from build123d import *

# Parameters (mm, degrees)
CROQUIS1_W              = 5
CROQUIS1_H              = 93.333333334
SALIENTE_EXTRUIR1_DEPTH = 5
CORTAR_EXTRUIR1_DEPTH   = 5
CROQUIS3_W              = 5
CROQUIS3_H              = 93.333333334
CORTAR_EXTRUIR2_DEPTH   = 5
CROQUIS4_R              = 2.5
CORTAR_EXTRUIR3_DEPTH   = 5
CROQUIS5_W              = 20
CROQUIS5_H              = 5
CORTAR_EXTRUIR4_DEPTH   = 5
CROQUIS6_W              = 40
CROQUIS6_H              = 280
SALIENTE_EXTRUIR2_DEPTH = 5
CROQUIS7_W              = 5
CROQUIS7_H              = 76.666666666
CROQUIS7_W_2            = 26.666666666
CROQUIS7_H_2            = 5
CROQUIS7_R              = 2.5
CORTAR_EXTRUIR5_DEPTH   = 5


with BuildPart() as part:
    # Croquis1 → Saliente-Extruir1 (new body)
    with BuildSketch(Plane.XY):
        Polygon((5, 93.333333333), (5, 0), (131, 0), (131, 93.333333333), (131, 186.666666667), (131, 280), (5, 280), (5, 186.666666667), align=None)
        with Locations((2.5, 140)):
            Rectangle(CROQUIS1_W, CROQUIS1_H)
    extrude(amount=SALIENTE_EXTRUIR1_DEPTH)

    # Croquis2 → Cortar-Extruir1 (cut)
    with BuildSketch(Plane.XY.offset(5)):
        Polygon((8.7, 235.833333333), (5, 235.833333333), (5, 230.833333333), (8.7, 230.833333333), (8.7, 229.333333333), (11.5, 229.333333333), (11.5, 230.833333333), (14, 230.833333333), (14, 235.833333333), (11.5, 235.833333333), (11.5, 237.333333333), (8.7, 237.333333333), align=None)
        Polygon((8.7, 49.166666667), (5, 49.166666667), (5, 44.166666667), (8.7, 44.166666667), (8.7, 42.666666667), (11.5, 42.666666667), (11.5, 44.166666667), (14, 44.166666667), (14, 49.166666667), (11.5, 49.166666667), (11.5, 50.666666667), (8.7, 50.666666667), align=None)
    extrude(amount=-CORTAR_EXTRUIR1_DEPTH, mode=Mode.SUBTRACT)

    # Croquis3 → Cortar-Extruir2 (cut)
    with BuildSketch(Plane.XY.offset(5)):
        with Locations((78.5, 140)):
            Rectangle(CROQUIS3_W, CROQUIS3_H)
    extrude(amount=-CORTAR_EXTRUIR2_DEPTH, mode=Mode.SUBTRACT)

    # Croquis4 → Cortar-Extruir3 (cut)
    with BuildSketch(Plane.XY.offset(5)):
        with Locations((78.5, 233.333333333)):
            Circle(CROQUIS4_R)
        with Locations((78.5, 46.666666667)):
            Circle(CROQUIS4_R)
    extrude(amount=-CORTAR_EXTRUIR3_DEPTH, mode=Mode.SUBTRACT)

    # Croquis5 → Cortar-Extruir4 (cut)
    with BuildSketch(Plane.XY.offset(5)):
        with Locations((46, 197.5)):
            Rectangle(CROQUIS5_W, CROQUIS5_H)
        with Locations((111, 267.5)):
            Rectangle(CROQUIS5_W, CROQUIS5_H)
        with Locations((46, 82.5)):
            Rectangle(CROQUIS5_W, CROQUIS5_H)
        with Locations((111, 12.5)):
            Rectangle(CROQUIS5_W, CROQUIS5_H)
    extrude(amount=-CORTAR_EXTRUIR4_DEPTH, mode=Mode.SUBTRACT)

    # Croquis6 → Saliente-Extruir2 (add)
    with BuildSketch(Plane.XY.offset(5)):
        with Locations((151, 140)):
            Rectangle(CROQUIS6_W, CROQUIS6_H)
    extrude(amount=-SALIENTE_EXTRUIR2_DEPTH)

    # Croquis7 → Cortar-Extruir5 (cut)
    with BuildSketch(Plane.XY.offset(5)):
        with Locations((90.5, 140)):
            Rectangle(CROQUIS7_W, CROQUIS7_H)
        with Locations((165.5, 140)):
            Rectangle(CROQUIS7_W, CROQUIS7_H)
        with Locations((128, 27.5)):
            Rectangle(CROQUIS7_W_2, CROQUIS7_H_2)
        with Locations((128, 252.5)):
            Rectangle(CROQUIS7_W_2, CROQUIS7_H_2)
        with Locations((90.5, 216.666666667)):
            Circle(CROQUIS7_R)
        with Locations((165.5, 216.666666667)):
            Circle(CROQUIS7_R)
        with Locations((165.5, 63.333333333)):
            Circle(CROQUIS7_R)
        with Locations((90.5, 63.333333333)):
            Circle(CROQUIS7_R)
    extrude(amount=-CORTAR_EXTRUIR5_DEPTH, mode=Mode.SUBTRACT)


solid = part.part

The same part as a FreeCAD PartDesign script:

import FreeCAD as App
import Part
import Sketcher
from FreeCAD import Vector
Q = App.Units.Quantity

doc = App.newDocument("Part")
body = doc.addObject("PartDesign::Body", "Body")

# Sketch on XY plane
sketch1 = doc.addObject("Sketcher::SketchObject", "Sketch")
body.addObject(sketch1)
sketch1.AttachmentSupport = (doc.XY_Plane, [""])
sketch1.MapMode = "FlatFace"
sketch1.addGeometry(Part.LineSegment(Vector(5, 0, 0), Vector(131, 0, 0)), False)
sketch1.addGeometry(Part.LineSegment(Vector(131, 0, 0), Vector(131, 280, 0)), False)
sketch1.addGeometry(Part.LineSegment(Vector(131, 280, 0), Vector(5, 280, 0)), False)
sketch1.addGeometry(Part.LineSegment(Vector(5, 280, 0), Vector(5, 186.666667, 0)), False)
sketch1.addGeometry(Part.LineSegment(Vector(5, 186.666667, 0), Vector(0, 186.666667, 0)), False)
sketch1.addGeometry(Part.LineSegment(Vector(0, 186.666667, 0), Vector(0, 93.333333, 0)), False)
sketch1.addGeometry(Part.LineSegment(Vector(0, 93.333333, 0), Vector(5, 93.333333, 0)), False)
sketch1.addGeometry(Part.LineSegment(Vector(5, 93.333333, 0), Vector(5, 0, 0)), False)
sketch1.addConstraint(Sketcher.Constraint("Coincident", 0, 2, 1, 1))
sketch1.addConstraint(Sketcher.Constraint("Coincident", 1, 2, 2, 1))
sketch1.addConstraint(Sketcher.Constraint("Coincident", 2, 2, 3, 1))
sketch1.addConstraint(Sketcher.Constraint("Coincident", 3, 2, 4, 1))
sketch1.addConstraint(Sketcher.Constraint("Coincident", 4, 2, 5, 1))
sketch1.addConstraint(Sketcher.Constraint("Coincident", 5, 2, 6, 1))
sketch1.addConstraint(Sketcher.Constraint("Coincident", 6, 2, 7, 1))
sketch1.addConstraint(Sketcher.Constraint("Coincident", 7, 2, 0, 1))
sketch1.addConstraint(Sketcher.Constraint("Horizontal", 0))
sketch1.addConstraint(Sketcher.Constraint("Vertical", 1))
sketch1.addConstraint(Sketcher.Constraint("Horizontal", 2))
sketch1.addConstraint(Sketcher.Constraint("Vertical", 3))
sketch1.addConstraint(Sketcher.Constraint("Horizontal", 4))
sketch1.addConstraint(Sketcher.Constraint("Vertical", 5))
sketch1.addConstraint(Sketcher.Constraint("Horizontal", 6))
sketch1.addConstraint(Sketcher.Constraint("Vertical", 7))
sketch1.addConstraint(Sketcher.Constraint("PointOnObject", 0, 2, -1))
sketch1.addConstraint(Sketcher.Constraint("PointOnObject", 4, 2, -2))
sketch1.addConstraint(Sketcher.Constraint("Vertical", 3, 2, 6, 2))
sketch1.addConstraint(Sketcher.Constraint("Equal", 3, 5))
sketch1.addConstraint(Sketcher.Constraint("Equal", 5, 7))
sketch1.addConstraint(Sketcher.Constraint("DistanceX", 0, 1, 0, 2, Q("126 mm")))
sketch1.addConstraint(Sketcher.Constraint("DistanceX", 4, 2, 4, 1, Q("5 mm")))
sketch1.addConstraint(Sketcher.Constraint("DistanceY", 1, 1, 1, 2, Q("280 mm")))
pad1 = doc.addObject("PartDesign::Pad", "Pad")
body.addObject(pad1)
pad1.Profile = sketch1
pad1.Length = 5

# Sketch on XY plane
sketch2 = doc.addObject("Sketcher::SketchObject", "Sketch001")
body.addObject(sketch2)
sketch2.AttachmentSupport = (doc.XY_Plane, [""])
sketch2.MapMode = "FlatFace"
sketch2.AttachmentOffset = App.Placement(Vector(0, 0, 5), App.Rotation())
sketch2.addGeometry(Part.LineSegment(Vector(8.7, 235.833333, 0), Vector(5, 235.833333, 0)), False)
sketch2.addGeometry(Part.LineSegment(Vector(5, 235.833333, 0), Vector(5, 230.833333, 0)), False)
sketch2.addGeometry(Part.LineSegment(Vector(5, 230.833333, 0), Vector(8.7, 230.833333, 0)), False)
sketch2.addGeometry(Part.LineSegment(Vector(8.7, 230.833333, 0), Vector(8.7, 229.333333, 0)), False)
sketch2.addGeometry(Part.LineSegment(Vector(8.7, 229.333333, 0), Vector(11.5, 229.333333, 0)), False)
sketch2.addGeometry(Part.LineSegment(Vector(11.5, 229.333333, 0), Vector(11.5, 230.833333, 0)), False)
sketch2.addGeometry(Part.LineSegment(Vector(11.5, 230.833333, 0), Vector(14, 230.833333, 0)), False)
sketch2.addGeometry(Part.LineSegment(Vector(14, 230.833333, 0), Vector(14, 235.833333, 0)), False)
sketch2.addGeometry(Part.LineSegment(Vector(14, 235.833333, 0), Vector(11.5, 235.833333, 0)), False)
sketch2.addGeometry(Part.LineSegment(Vector(11.5, 235.833333, 0), Vector(11.5, 237.333333, 0)), False)
sketch2.addGeometry(Part.LineSegment(Vector(11.5, 237.333333, 0), Vector(8.7, 237.333333, 0)), False)
sketch2.addGeometry(Part.LineSegment(Vector(8.7, 237.333333, 0), Vector(8.7, 235.833333, 0)), False)
sketch2.addGeometry(Part.LineSegment(Vector(8.7, 49.166667, 0), Vector(5, 49.166667, 0)), False)
sketch2.addGeometry(Part.LineSegment(Vector(5, 49.166667, 0), Vector(5, 44.166667, 0)), False)
sketch2.addGeometry(Part.LineSegment(Vector(5, 44.166667, 0), Vector(8.7, 44.166667, 0)), False)
sketch2.addGeometry(Part.LineSegment(Vector(8.7, 44.166667, 0), Vector(8.7, 42.666667, 0)), False)
sketch2.addGeometry(Part.LineSegment(Vector(8.7, 42.666667, 0), Vector(11.5, 42.666667, 0)), False)
sketch2.addGeometry(Part.LineSegment(Vector(11.5, 42.666667, 0), Vector(11.5, 44.166667, 0)), False)
sketch2.addGeometry(Part.LineSegment(Vector(11.5, 44.166667, 0), Vector(14, 44.166667, 0)), False)
sketch2.addGeometry(Part.LineSegment(Vector(14, 44.166667, 0), Vector(14, 49.166667, 0)), False)
sketch2.addGeometry(Part.LineSegment(Vector(14, 49.166667, 0), Vector(11.5, 49.166667, 0)), False)
sketch2.addGeometry(Part.LineSegment(Vector(11.5, 49.166667, 0), Vector(11.5, 50.666667, 0)), False)
sketch2.addGeometry(Part.LineSegment(Vector(11.5, 50.666667, 0), Vector(8.7, 50.666667, 0)), False)
sketch2.addGeometry(Part.LineSegment(Vector(8.7, 50.666667, 0), Vector(8.7, 49.166667, 0)), False)
sketch2.addConstraint(Sketcher.Constraint("Coincident", 0, 2, 1, 1))
sketch2.addConstraint(Sketcher.Constraint("Coincident", 1, 2, 2, 1))
sketch2.addConstraint(Sketcher.Constraint("Coincident", 2, 2, 3, 1))
sketch2.addConstraint(Sketcher.Constraint("Coincident", 3, 2, 4, 1))
sketch2.addConstraint(Sketcher.Constraint("Coincident", 4, 2, 5, 1))
sketch2.addConstraint(Sketcher.Constraint("Coincident", 5, 2, 6, 1))
sketch2.addConstraint(Sketcher.Constraint("Coincident", 6, 2, 7, 1))
sketch2.addConstraint(Sketcher.Constraint("Coincident", 7, 2, 8, 1))
sketch2.addConstraint(Sketcher.Constraint("Coincident", 8, 2, 9, 1))
sketch2.addConstraint(Sketcher.Constraint("Coincident", 9, 2, 10, 1))
sketch2.addConstraint(Sketcher.Constraint("Coincident", 10, 2, 11, 1))
sketch2.addConstraint(Sketcher.Constraint("Coincident", 11, 2, 0, 1))
sketch2.addConstraint(Sketcher.Constraint("Coincident", 12, 2, 13, 1))
sketch2.addConstraint(Sketcher.Constraint("Coincident", 13, 2, 14, 1))
sketch2.addConstraint(Sketcher.Constraint("Coincident", 14, 2, 15, 1))
sketch2.addConstraint(Sketcher.Constraint("Coincident", 15, 2, 16, 1))
sketch2.addConstraint(Sketcher.Constraint("Coincident", 16, 2, 17, 1))
sketch2.addConstraint(Sketcher.Constraint("Coincident", 17, 2, 18, 1))
sketch2.addConstraint(Sketcher.Constraint("Coincident", 18, 2, 19, 1))
sketch2.addConstraint(Sketcher.Constraint("Coincident", 19, 2, 20, 1))
sketch2.addConstraint(Sketcher.Constraint("Coincident", 20, 2, 21, 1))
sketch2.addConstraint(Sketcher.Constraint("Coincident", 21, 2, 22, 1))
sketch2.addConstraint(Sketcher.Constraint("Coincident", 22, 2, 23, 1))
sketch2.addConstraint(Sketcher.Constraint("Coincident", 23, 2, 12, 1))
sketch2.addConstraint(Sketcher.Constraint("Horizontal", 0))
sketch2.addConstraint(Sketcher.Constraint("Vertical", 1))
sketch2.addConstraint(Sketcher.Constraint("Horizontal", 2))
sketch2.addConstraint(Sketcher.Constraint("Vertical", 3))
sketch2.addConstraint(Sketcher.Constraint("Horizontal", 4))
sketch2.addConstraint(Sketcher.Constraint("Vertical", 5))
sketch2.addConstraint(Sketcher.Constraint("Horizontal", 6))
sketch2.addConstraint(Sketcher.Constraint("Vertical", 7))
sketch2.addConstraint(Sketcher.Constraint("Horizontal", 8))
sketch2.addConstraint(Sketcher.Constraint("Vertical", 9))
sketch2.addConstraint(Sketcher.Constraint("Horizontal", 10))
sketch2.addConstraint(Sketcher.Constraint("Vertical", 11))
sketch2.addConstraint(Sketcher.Constraint("Horizontal", 12))
sketch2.addConstraint(Sketcher.Constraint("Vertical", 13))
sketch2.addConstraint(Sketcher.Constraint("Horizontal", 14))
sketch2.addConstraint(Sketcher.Constraint("Vertical", 15))
sketch2.addConstraint(Sketcher.Constraint("Horizontal", 16))
sketch2.addConstraint(Sketcher.Constraint("Vertical", 17))
sketch2.addConstraint(Sketcher.Constraint("Horizontal", 18))
sketch2.addConstraint(Sketcher.Constraint("Vertical", 19))
sketch2.addConstraint(Sketcher.Constraint("Horizontal", 20))
sketch2.addConstraint(Sketcher.Constraint("Vertical", 21))
sketch2.addConstraint(Sketcher.Constraint("Horizontal", 22))
sketch2.addConstraint(Sketcher.Constraint("Vertical", 23))
sketch2.addConstraint(Sketcher.Constraint("Horizontal", 2, 2, 5, 2))
sketch2.addConstraint(Sketcher.Constraint("Horizontal", 0, 2, 7, 2))
sketch2.addConstraint(Sketcher.Constraint("Horizontal", 14, 2, 17, 2))
sketch2.addConstraint(Sketcher.Constraint("Horizontal", 12, 2, 19, 2))
sketch2.addConstraint(Sketcher.Constraint("Vertical", 5, 2, 8, 2))
sketch2.addConstraint(Sketcher.Constraint("Vertical", 3, 2, 10, 2))
sketch2.addConstraint(Sketcher.Constraint("Vertical", 1, 2, 12, 2))
sketch2.addConstraint(Sketcher.Constraint("Vertical", 11, 2, 14, 2))
sketch2.addConstraint(Sketcher.Constraint("Vertical", 9, 2, 16, 2))
sketch2.addConstraint(Sketcher.Constraint("Vertical", 7, 2, 18, 2))
sketch2.addConstraint(Sketcher.Constraint("Vertical", 17, 2, 20, 2))
sketch2.addConstraint(Sketcher.Constraint("Vertical", 15, 2, 22, 2))
sketch2.addConstraint(Sketcher.Constraint("Equal", 5, 9))
sketch2.addConstraint(Sketcher.Constraint("Equal", 7, 13))
sketch2.addConstraint(Sketcher.Constraint("Equal", 11, 15))
sketch2.addConstraint(Sketcher.Constraint("Equal", 17, 21))
sketch2.addConstraint(Sketcher.Constraint("DistanceY", 1, 2, 1, 1, Q("5 mm")))
sketch2.addConstraint(Sketcher.Constraint("DistanceX", 0, 2, 0, 1, Q("3.7 mm")))
sketch2.addConstraint(Sketcher.Constraint("DistanceX", 4, 1, 4, 2, Q("2.8 mm")))
sketch2.addConstraint(Sketcher.Constraint("DistanceX", 6, 1, 6, 2, Q("2.5 mm")))
sketch2.addConstraint(Sketcher.Constraint("DistanceY", 3, 2, 3, 1, Q("1.5 mm")))
sketch2.addConstraint(Sketcher.Constraint("DistanceX", -1, 1, 0, 2, Q("5 mm")))
sketch2.addConstraint(Sketcher.Constraint("DistanceY", -1, 1, 0, 2, Q("235.833333 mm")))
sketch2.addConstraint(Sketcher.Constraint("DistanceY", -1, 1, 12, 2, Q("49.166667 mm")))
pocket1 = doc.addObject("PartDesign::Pocket", "Pocket")
body.addObject(pocket1)
pocket1.Profile = sketch2
pocket1.Length = 5

# Sketch on XY plane
sketch3 = doc.addObject("Sketcher::SketchObject", "Sketch002")
body.addObject(sketch3)
sketch3.AttachmentSupport = (doc.XY_Plane, [""])
sketch3.MapMode = "FlatFace"
sketch3.AttachmentOffset = App.Placement(Vector(0, 0, 5), App.Rotation())
sketch3.addGeometry(Part.LineSegment(Vector(76, 186.666667, 0), Vector(76, 93.333333, 0)), False)
sketch3.addGeometry(Part.LineSegment(Vector(76, 93.333333, 0), Vector(81, 93.333333, 0)), False)
sketch3.addGeometry(Part.LineSegment(Vector(81, 93.333333, 0), Vector(81, 186.666667, 0)), False)
sketch3.addGeometry(Part.LineSegment(Vector(81, 186.666667, 0), Vector(76, 186.666667, 0)), False)
sketch3.addConstraint(Sketcher.Constraint("Coincident", 0, 2, 1, 1))
sketch3.addConstraint(Sketcher.Constraint("Coincident", 1, 2, 2, 1))
sketch3.addConstraint(Sketcher.Constraint("Coincident", 2, 2, 3, 1))
sketch3.addConstraint(Sketcher.Constraint("Coincident", 3, 2, 0, 1))
sketch3.addConstraint(Sketcher.Constraint("Vertical", 0))
sketch3.addConstraint(Sketcher.Constraint("Horizontal", 1))
sketch3.addConstraint(Sketcher.Constraint("Vertical", 2))
sketch3.addConstraint(Sketcher.Constraint("Horizontal", 3))
sketch3.addConstraint(Sketcher.Constraint("DistanceX", 1, 1, 1, 2, Q("5 mm")))
sketch3.addConstraint(Sketcher.Constraint("DistanceX", -1, 1, 0, 2, Q("76 mm")))
sketch3.addConstraint(Sketcher.Constraint("DistanceY", 0, 2, 0, 1, Q("93.333333 mm")))
sketch3.addConstraint(Sketcher.Constraint("DistanceY", -1, 1, 0, 2, Q("93.333333 mm")))
pocket2 = doc.addObject("PartDesign::Pocket", "Pocket001")
body.addObject(pocket2)
pocket2.Profile = sketch3
pocket2.Length = 5

# Sketch on XY plane
sketch4 = doc.addObject("Sketcher::SketchObject", "Sketch003")
body.addObject(sketch4)
sketch4.AttachmentSupport = (doc.XY_Plane, [""])
sketch4.MapMode = "FlatFace"
sketch4.AttachmentOffset = App.Placement(Vector(0, 0, 5), App.Rotation())
sketch4.addGeometry(Part.Circle(Vector(78.5, 233.333333, 0), Vector(0, 0, 1), 2.5), False)
sketch4.addGeometry(Part.Circle(Vector(78.5, 46.666667, 0), Vector(0, 0, 1), 2.5), False)
sketch4.addConstraint(Sketcher.Constraint("Equal", 0, 1))
sketch4.addConstraint(Sketcher.Constraint("Vertical", 0, 3, 1, 3))
sketch4.addConstraint(Sketcher.Constraint("Diameter", 0, Q("5 mm")))
sketch4.addConstraint(Sketcher.Constraint("DistanceX", -1, 1, 0, 3, Q("78.5 mm")))
sketch4.addConstraint(Sketcher.Constraint("DistanceY", -1, 1, 0, 3, Q("233.333333 mm")))
sketch4.addConstraint(Sketcher.Constraint("DistanceY", -1, 1, 1, 3, Q("46.666667 mm")))
pocket3 = doc.addObject("PartDesign::Pocket", "Pocket002")
body.addObject(pocket3)
pocket3.Profile = sketch4
pocket3.Length = 5

# Sketch on XY plane
sketch5 = doc.addObject("Sketcher::SketchObject", "Sketch004")
body.addObject(sketch5)
sketch5.AttachmentSupport = (doc.XY_Plane, [""])
sketch5.MapMode = "FlatFace"
sketch5.AttachmentOffset = App.Placement(Vector(0, 0, 5), App.Rotation())
sketch5.addGeometry(Part.LineSegment(Vector(36, 200, 0), Vector(36, 195, 0)), False)
sketch5.addGeometry(Part.LineSegment(Vector(36, 195, 0), Vector(56, 195, 0)), False)
sketch5.addGeometry(Part.LineSegment(Vector(56, 195, 0), Vector(56, 200, 0)), False)
sketch5.addGeometry(Part.LineSegment(Vector(56, 200, 0), Vector(36, 200, 0)), False)
sketch5.addGeometry(Part.LineSegment(Vector(101, 270, 0), Vector(101, 265, 0)), False)
sketch5.addGeometry(Part.LineSegment(Vector(101, 265, 0), Vector(121, 265, 0)), False)
sketch5.addGeometry(Part.LineSegment(Vector(121, 265, 0), Vector(121, 270, 0)), False)
sketch5.addGeometry(Part.LineSegment(Vector(121, 270, 0), Vector(101, 270, 0)), False)
sketch5.addGeometry(Part.LineSegment(Vector(36, 85, 0), Vector(36, 80, 0)), False)
sketch5.addGeometry(Part.LineSegment(Vector(36, 80, 0), Vector(56, 80, 0)), False)
sketch5.addGeometry(Part.LineSegment(Vector(56, 80, 0), Vector(56, 85, 0)), False)
sketch5.addGeometry(Part.LineSegment(Vector(56, 85, 0), Vector(36, 85, 0)), False)
sketch5.addGeometry(Part.LineSegment(Vector(101, 15, 0), Vector(101, 10, 0)), False)
sketch5.addGeometry(Part.LineSegment(Vector(101, 10, 0), Vector(121, 10, 0)), False)
sketch5.addGeometry(Part.LineSegment(Vector(121, 10, 0), Vector(121, 15, 0)), False)
sketch5.addGeometry(Part.LineSegment(Vector(121, 15, 0), Vector(101, 15, 0)), False)
sketch5.addConstraint(Sketcher.Constraint("Coincident", 0, 2, 1, 1))
sketch5.addConstraint(Sketcher.Constraint("Coincident", 1, 2, 2, 1))
sketch5.addConstraint(Sketcher.Constraint("Coincident", 2, 2, 3, 1))
sketch5.addConstraint(Sketcher.Constraint("Coincident", 3, 2, 0, 1))
sketch5.addConstraint(Sketcher.Constraint("Coincident", 4, 2, 5, 1))
sketch5.addConstraint(Sketcher.Constraint("Coincident", 5, 2, 6, 1))
sketch5.addConstraint(Sketcher.Constraint("Coincident", 6, 2, 7, 1))
sketch5.addConstraint(Sketcher.Constraint("Coincident", 7, 2, 4, 1))
sketch5.addConstraint(Sketcher.Constraint("Coincident", 8, 2, 9, 1))
sketch5.addConstraint(Sketcher.Constraint("Coincident", 9, 2, 10, 1))
sketch5.addConstraint(Sketcher.Constraint("Coincident", 10, 2, 11, 1))
sketch5.addConstraint(Sketcher.Constraint("Coincident", 11, 2, 8, 1))
sketch5.addConstraint(Sketcher.Constraint("Coincident", 12, 2, 13, 1))
sketch5.addConstraint(Sketcher.Constraint("Coincident", 13, 2, 14, 1))
sketch5.addConstraint(Sketcher.Constraint("Coincident", 14, 2, 15, 1))
sketch5.addConstraint(Sketcher.Constraint("Coincident", 15, 2, 12, 1))
sketch5.addConstraint(Sketcher.Constraint("Vertical", 0))
sketch5.addConstraint(Sketcher.Constraint("Horizontal", 1))
sketch5.addConstraint(Sketcher.Constraint("Vertical", 2))
sketch5.addConstraint(Sketcher.Constraint("Horizontal", 3))
sketch5.addConstraint(Sketcher.Constraint("Vertical", 4))
sketch5.addConstraint(Sketcher.Constraint("Horizontal", 5))
sketch5.addConstraint(Sketcher.Constraint("Vertical", 6))
sketch5.addConstraint(Sketcher.Constraint("Horizontal", 7))
sketch5.addConstraint(Sketcher.Constraint("Vertical", 8))
sketch5.addConstraint(Sketcher.Constraint("Horizontal", 9))
sketch5.addConstraint(Sketcher.Constraint("Vertical", 10))
sketch5.addConstraint(Sketcher.Constraint("Horizontal", 11))
sketch5.addConstraint(Sketcher.Constraint("Vertical", 12))
sketch5.addConstraint(Sketcher.Constraint("Horizontal", 13))
sketch5.addConstraint(Sketcher.Constraint("Vertical", 14))
sketch5.addConstraint(Sketcher.Constraint("Horizontal", 15))
sketch5.addConstraint(Sketcher.Constraint("Vertical", 3, 2, 8, 2))
sketch5.addConstraint(Sketcher.Constraint("Vertical", 2, 2, 9, 2))
sketch5.addConstraint(Sketcher.Constraint("Vertical", 7, 2, 12, 2))
sketch5.addConstraint(Sketcher.Constraint("Vertical", 6, 2, 13, 2))
sketch5.addConstraint(Sketcher.Constraint("Equal", 3, 5))
sketch5.addConstraint(Sketcher.Constraint("Equal", 2, 4))
sketch5.addConstraint(Sketcher.Constraint("Equal", 6, 8))
sketch5.addConstraint(Sketcher.Constraint("Equal", 10, 12))
sketch5.addConstraint(Sketcher.Constraint("DistanceX", 1, 1, 1, 2, Q("20 mm")))
sketch5.addConstraint(Sketcher.Constraint("DistanceY", 0, 2, 0, 1, Q("5 mm")))
sketch5.addConstraint(Sketcher.Constraint("DistanceX", -1, 1, 0, 2, Q("36 mm")))
sketch5.addConstraint(Sketcher.Constraint("DistanceY", -1, 1, 0, 2, Q("195 mm")))
sketch5.addConstraint(Sketcher.Constraint("DistanceX", -1, 1, 4, 2, Q("101 mm")))
sketch5.addConstraint(Sketcher.Constraint("DistanceY", -1, 1, 4, 2, Q("265 mm")))
sketch5.addConstraint(Sketcher.Constraint("DistanceY", -1, 1, 8, 2, Q("80 mm")))
sketch5.addConstraint(Sketcher.Constraint("DistanceY", -1, 1, 12, 2, Q("10 mm")))
pocket4 = doc.addObject("PartDesign::Pocket", "Pocket003")
body.addObject(pocket4)
pocket4.Profile = sketch5
pocket4.Length = 5

# Sketch on XY plane
sketch6 = doc.addObject("Sketcher::SketchObject", "Sketch005")
body.addObject(sketch6)
sketch6.AttachmentSupport = (doc.XY_Plane, [""])
sketch6.MapMode = "FlatFace"
sketch6.AttachmentOffset = App.Placement(Vector(0, 0, 5), App.Rotation())
sketch6.addGeometry(Part.LineSegment(Vector(131, 280, 0), Vector(131, 0, 0)), False)
sketch6.addGeometry(Part.LineSegment(Vector(131, 0, 0), Vector(171, 0, 0)), False)
sketch6.addGeometry(Part.LineSegment(Vector(171, 0, 0), Vector(171, 280, 0)), False)
sketch6.addGeometry(Part.LineSegment(Vector(171, 280, 0), Vector(131, 280, 0)), False)
sketch6.addConstraint(Sketcher.Constraint("Coincident", 0, 2, 1, 1))
sketch6.addConstraint(Sketcher.Constraint("Coincident", 1, 2, 2, 1))
sketch6.addConstraint(Sketcher.Constraint("Coincident", 2, 2, 3, 1))
sketch6.addConstraint(Sketcher.Constraint("Coincident", 3, 2, 0, 1))
sketch6.addConstraint(Sketcher.Constraint("Vertical", 0))
sketch6.addConstraint(Sketcher.Constraint("Horizontal", 1))
sketch6.addConstraint(Sketcher.Constraint("Vertical", 2))
sketch6.addConstraint(Sketcher.Constraint("Horizontal", 3))
sketch6.addConstraint(Sketcher.Constraint("PointOnObject", 0, 2, -1))
sketch6.addConstraint(Sketcher.Constraint("DistanceX", 1, 1, 1, 2, Q("40 mm")))
sketch6.addConstraint(Sketcher.Constraint("DistanceY", 0, 2, 0, 1, Q("280 mm")))
sketch6.addConstraint(Sketcher.Constraint("DistanceX", -1, 1, 0, 2, Q("131 mm")))
pad2 = doc.addObject("PartDesign::Pad", "Pad001")
body.addObject(pad2)
pad2.Profile = sketch6
pad2.Length = 5
pad2.Reversed = True

# Sketch on XY plane
sketch7 = doc.addObject("Sketcher::SketchObject", "Sketch006")
body.addObject(sketch7)
sketch7.AttachmentSupport = (doc.XY_Plane, [""])
sketch7.MapMode = "FlatFace"
sketch7.AttachmentOffset = App.Placement(Vector(0, 0, 5), App.Rotation())
sketch7.addGeometry(Part.LineSegment(Vector(88, 178.333333, 0), Vector(88, 101.666667, 0)), False)
sketch7.addGeometry(Part.LineSegment(Vector(88, 101.666667, 0), Vector(93, 101.666667, 0)), False)
sketch7.addGeometry(Part.LineSegment(Vector(93, 101.666667, 0), Vector(93, 178.333333, 0)), False)
sketch7.addGeometry(Part.LineSegment(Vector(93, 178.333333, 0), Vector(88, 178.333333, 0)), False)
sketch7.addGeometry(Part.LineSegment(Vector(163, 178.333333, 0), Vector(163, 101.666667, 0)), False)
sketch7.addGeometry(Part.LineSegment(Vector(163, 101.666667, 0), Vector(168, 101.666667, 0)), False)
sketch7.addGeometry(Part.LineSegment(Vector(168, 101.666667, 0), Vector(168, 178.333333, 0)), False)
sketch7.addGeometry(Part.LineSegment(Vector(168, 178.333333, 0), Vector(163, 178.333333, 0)), False)
sketch7.addGeometry(Part.LineSegment(Vector(114.666667, 30, 0), Vector(114.666667, 25, 0)), False)
sketch7.addGeometry(Part.LineSegment(Vector(114.666667, 25, 0), Vector(141.333333, 25, 0)), False)
sketch7.addGeometry(Part.LineSegment(Vector(141.333333, 25, 0), Vector(141.333333, 30, 0)), False)
sketch7.addGeometry(Part.LineSegment(Vector(141.333333, 30, 0), Vector(114.666667, 30, 0)), False)
sketch7.addGeometry(Part.LineSegment(Vector(114.666667, 255, 0), Vector(114.666667, 250, 0)), False)
sketch7.addGeometry(Part.LineSegment(Vector(114.666667, 250, 0), Vector(141.333333, 250, 0)), False)
sketch7.addGeometry(Part.LineSegment(Vector(141.333333, 250, 0), Vector(141.333333, 255, 0)), False)
sketch7.addGeometry(Part.LineSegment(Vector(141.333333, 255, 0), Vector(114.666667, 255, 0)), False)
sketch7.addGeometry(Part.Circle(Vector(90.5, 216.666667, 0), Vector(0, 0, 1), 2.5), False)
sketch7.addGeometry(Part.Circle(Vector(165.5, 216.666667, 0), Vector(0, 0, 1), 2.5), False)
sketch7.addGeometry(Part.Circle(Vector(165.5, 63.333333, 0), Vector(0, 0, 1), 2.5), False)
sketch7.addGeometry(Part.Circle(Vector(90.5, 63.333333, 0), Vector(0, 0, 1), 2.5), False)
sketch7.addConstraint(Sketcher.Constraint("Coincident", 0, 2, 1, 1))
sketch7.addConstraint(Sketcher.Constraint("Coincident", 1, 2, 2, 1))
sketch7.addConstraint(Sketcher.Constraint("Coincident", 2, 2, 3, 1))
sketch7.addConstraint(Sketcher.Constraint("Coincident", 3, 2, 0, 1))
sketch7.addConstraint(Sketcher.Constraint("Coincident", 4, 2, 5, 1))
sketch7.addConstraint(Sketcher.Constraint("Coincident", 5, 2, 6, 1))
sketch7.addConstraint(Sketcher.Constraint("Coincident", 6, 2, 7, 1))
sketch7.addConstraint(Sketcher.Constraint("Coincident", 7, 2, 4, 1))
sketch7.addConstraint(Sketcher.Constraint("Coincident", 8, 2, 9, 1))
sketch7.addConstraint(Sketcher.Constraint("Coincident", 9, 2, 10, 1))
sketch7.addConstraint(Sketcher.Constraint("Coincident", 10, 2, 11, 1))
sketch7.addConstraint(Sketcher.Constraint("Coincident", 11, 2, 8, 1))
sketch7.addConstraint(Sketcher.Constraint("Coincident", 12, 2, 13, 1))
sketch7.addConstraint(Sketcher.Constraint("Coincident", 13, 2, 14, 1))
sketch7.addConstraint(Sketcher.Constraint("Coincident", 14, 2, 15, 1))
sketch7.addConstraint(Sketcher.Constraint("Coincident", 15, 2, 12, 1))
sketch7.addConstraint(Sketcher.Constraint("Vertical", 0))
sketch7.addConstraint(Sketcher.Constraint("Horizontal", 1))
sketch7.addConstraint(Sketcher.Constraint("Vertical", 2))
sketch7.addConstraint(Sketcher.Constraint("Horizontal", 3))
sketch7.addConstraint(Sketcher.Constraint("Vertical", 4))
sketch7.addConstraint(Sketcher.Constraint("Horizontal", 5))
sketch7.addConstraint(Sketcher.Constraint("Vertical", 6))
sketch7.addConstraint(Sketcher.Constraint("Horizontal", 7))
sketch7.addConstraint(Sketcher.Constraint("Vertical", 8))
sketch7.addConstraint(Sketcher.Constraint("Horizontal", 9))
sketch7.addConstraint(Sketcher.Constraint("Vertical", 10))
sketch7.addConstraint(Sketcher.Constraint("Horizontal", 11))
sketch7.addConstraint(Sketcher.Constraint("Vertical", 12))
sketch7.addConstraint(Sketcher.Constraint("Horizontal", 13))
sketch7.addConstraint(Sketcher.Constraint("Vertical", 14))
sketch7.addConstraint(Sketcher.Constraint("Horizontal", 15))
sketch7.addConstraint(Sketcher.Constraint("Equal", 16, 17))
sketch7.addConstraint(Sketcher.Constraint("Equal", 17, 18))
sketch7.addConstraint(Sketcher.Constraint("Equal", 18, 19))
sketch7.addConstraint(Sketcher.Constraint("Horizontal", 16, 3, 17, 3))
sketch7.addConstraint(Sketcher.Constraint("Horizontal", 18, 3, 19, 3))
sketch7.addConstraint(Sketcher.Constraint("Horizontal", 1, 2, 4, 2))
sketch7.addConstraint(Sketcher.Constraint("Horizontal", 3, 2, 6, 2))
sketch7.addConstraint(Sketcher.Constraint("Vertical", 17, 3, 18, 3))
sketch7.addConstraint(Sketcher.Constraint("Vertical", 16, 3, 19, 3))
sketch7.addConstraint(Sketcher.Constraint("Vertical", 11, 2, 12, 2))
sketch7.addConstraint(Sketcher.Constraint("Vertical", 10, 2, 13, 2))
sketch7.addConstraint(Sketcher.Constraint("Equal", 3, 5))
sketch7.addConstraint(Sketcher.Constraint("Equal", 7, 8))
sketch7.addConstraint(Sketcher.Constraint("Equal", 10, 12))
sketch7.addConstraint(Sketcher.Constraint("Diameter", 16, Q("5 mm")))
sketch7.addConstraint(Sketcher.Constraint("DistanceX", 1, 1, 1, 2, Q("5 mm")))
sketch7.addConstraint(Sketcher.Constraint("DistanceX", -1, 1, 0, 2, Q("88 mm")))
sketch7.addConstraint(Sketcher.Constraint("DistanceX", -1, 1, 4, 2, Q("163 mm")))
sketch7.addConstraint(Sketcher.Constraint("DistanceY", -1, 1, 8, 2, Q("25 mm")))
sketch7.addConstraint(Sketcher.Constraint("DistanceY", -1, 1, 12, 2, Q("250 mm")))
sketch7.addConstraint(Sketcher.Constraint("DistanceX", 16, 3, 17, 3, Q("75 mm")))
sketch7.addConstraint(Sketcher.Constraint("DistanceY", 0, 2, 16, 3, Q("115 mm")))
sketch7.addConstraint(Sketcher.Constraint("DistanceY", 19, 3, 2, 2, Q("115 mm")))
sketch7.addConstraint(Sketcher.Constraint("DistanceX", -1, 1, 16, 3, Q("90.5 mm")))
sketch7.addConstraint(Sketcher.Constraint("DistanceX", 9, 1, 9, 2, Q("26.666667 mm")))
sketch7.addConstraint(Sketcher.Constraint("DistanceY", 0, 2, 0, 1, Q("76.666667 mm")))
sketch7.addConstraint(Sketcher.Constraint("DistanceY", -1, 1, 16, 3, Q("216.666667 mm")))
sketch7.addConstraint(Sketcher.Constraint("DistanceX", -1, 1, 8, 2, Q("114.666667 mm")))
pocket5 = doc.addObject("PartDesign::Pocket", "Pocket004")
body.addObject(pocket5)
pocket5.Profile = sketch7
pocket5.Length = 5

doc.recompute()
